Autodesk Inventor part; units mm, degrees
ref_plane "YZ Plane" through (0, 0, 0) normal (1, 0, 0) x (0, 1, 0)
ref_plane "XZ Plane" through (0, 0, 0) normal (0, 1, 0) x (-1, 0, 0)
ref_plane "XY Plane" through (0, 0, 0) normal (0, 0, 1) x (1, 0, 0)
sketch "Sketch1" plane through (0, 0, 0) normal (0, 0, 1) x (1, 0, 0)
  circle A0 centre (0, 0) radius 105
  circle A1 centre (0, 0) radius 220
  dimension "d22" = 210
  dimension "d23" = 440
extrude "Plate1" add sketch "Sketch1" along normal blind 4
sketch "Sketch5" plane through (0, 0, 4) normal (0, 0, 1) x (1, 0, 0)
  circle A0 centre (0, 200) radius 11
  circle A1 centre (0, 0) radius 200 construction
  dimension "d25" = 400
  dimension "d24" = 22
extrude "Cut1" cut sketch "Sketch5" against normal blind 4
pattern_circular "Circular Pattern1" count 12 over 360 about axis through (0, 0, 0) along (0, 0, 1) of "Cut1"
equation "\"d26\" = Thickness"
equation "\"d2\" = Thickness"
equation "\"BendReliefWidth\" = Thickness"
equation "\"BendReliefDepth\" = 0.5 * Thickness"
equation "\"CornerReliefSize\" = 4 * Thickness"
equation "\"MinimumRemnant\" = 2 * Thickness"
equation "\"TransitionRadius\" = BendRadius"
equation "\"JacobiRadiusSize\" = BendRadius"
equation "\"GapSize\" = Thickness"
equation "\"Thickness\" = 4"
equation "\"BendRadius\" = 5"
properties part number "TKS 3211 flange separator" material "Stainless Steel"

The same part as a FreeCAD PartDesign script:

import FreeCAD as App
import Part
import Sketcher
from FreeCAD import Vector
Q = App.Units.Quantity

doc = App.newDocument("Part")
params = doc.addObject("Spreadsheet::Sheet", "Params")
for row, (alias, value) in enumerate([
    ("sketch1_diameter", "440 mm"),
    ("sketch1_diameter2", "210 mm"),
    ("pad1_length", "4 mm"),
    ("sketch2_diameter", "22 mm"),
    ("pocket1_length", "4 mm"),
], start=1):
    params.set(f"A{row}", alias)
    params.set(f"B{row}", "=" + value)
    params.setAlias(f"B{row}", alias)

body = doc.addObject("PartDesign::Body", "Body")

# Sketch on XY plane
sketch1 = body.newObject("Sketcher::SketchObject", "Sketch")
sketch1.AttachmentSupport = (doc.getObject("XY_Plane"), [""])
sketch1.MapMode = "FlatFace"
sketch1.addGeometry([
    Part.Circle(Vector(0, 0, 0), Vector(0, 0, 1), 220),
    Part.Circle(Vector(0, 0, 0), Vector(0, 0, 1), 105),
], False)
sketch1.addConstraint([
    Sketcher.Constraint("Coincident", 0, 3, -1, 1),
    Sketcher.Constraint("Coincident", 1, 3, -1, 1),
    Sketcher.Constraint("Diameter", 0, Q("440 mm")),
    Sketcher.Constraint("Diameter", 1, Q("210 mm")),
])
sketch1.setExpression("Constraints[2]", "Params.sketch1_diameter")
sketch1.setExpression("Constraints[3]", "Params.sketch1_diameter2")
pad1 = body.newObject("PartDesign::Pad", "Pad")
pad1.Profile = sketch1
pad1.setExpression("Length", "Params.pad1_length")

# Sketch on XY plane
sketch2 = body.newObject("Sketcher::SketchObject", "Sketch001")
sketch2.AttachmentSupport = (doc.getObject("XY_Plane"), [""])
sketch2.MapMode = "FlatFace"
sketch2.AttachmentOffset = App.Placement(Vector(0, 0, 4), App.Rotation())
sketch2.addGeometry(Part.Circle(Vector(0, 200, 0), Vector(0, 0, 1), 11), False)
sketch2.addConstraint([
    Sketcher.Constraint("PointOnObject", 0, 3, -2),
    Sketcher.Constraint("Diameter", 0, Q("22 mm")),
    Sketcher.Constraint("DistanceY", -1, 1, 0, 3, Q("200 mm")),
])
sketch2.setExpression("Constraints[1]", "Params.sketch2_diameter")
pocket1 = body.newObject("PartDesign::Pocket", "Pocket")
pocket1.Profile = sketch2
pocket1.setExpression("Length", "Params.pocket1_length")
doc.recompute()

polarpattern = body.newObject("PartDesign::PolarPattern", "PolarPattern")
polarpattern.Originals = [pocket1]
polarpattern.Axis = (doc.getObject("Z_Axis"), [""])
polarpattern.Angle = 360
polarpattern.Occurrences = 12
body.Tip = polarpattern

doc.recompute()
